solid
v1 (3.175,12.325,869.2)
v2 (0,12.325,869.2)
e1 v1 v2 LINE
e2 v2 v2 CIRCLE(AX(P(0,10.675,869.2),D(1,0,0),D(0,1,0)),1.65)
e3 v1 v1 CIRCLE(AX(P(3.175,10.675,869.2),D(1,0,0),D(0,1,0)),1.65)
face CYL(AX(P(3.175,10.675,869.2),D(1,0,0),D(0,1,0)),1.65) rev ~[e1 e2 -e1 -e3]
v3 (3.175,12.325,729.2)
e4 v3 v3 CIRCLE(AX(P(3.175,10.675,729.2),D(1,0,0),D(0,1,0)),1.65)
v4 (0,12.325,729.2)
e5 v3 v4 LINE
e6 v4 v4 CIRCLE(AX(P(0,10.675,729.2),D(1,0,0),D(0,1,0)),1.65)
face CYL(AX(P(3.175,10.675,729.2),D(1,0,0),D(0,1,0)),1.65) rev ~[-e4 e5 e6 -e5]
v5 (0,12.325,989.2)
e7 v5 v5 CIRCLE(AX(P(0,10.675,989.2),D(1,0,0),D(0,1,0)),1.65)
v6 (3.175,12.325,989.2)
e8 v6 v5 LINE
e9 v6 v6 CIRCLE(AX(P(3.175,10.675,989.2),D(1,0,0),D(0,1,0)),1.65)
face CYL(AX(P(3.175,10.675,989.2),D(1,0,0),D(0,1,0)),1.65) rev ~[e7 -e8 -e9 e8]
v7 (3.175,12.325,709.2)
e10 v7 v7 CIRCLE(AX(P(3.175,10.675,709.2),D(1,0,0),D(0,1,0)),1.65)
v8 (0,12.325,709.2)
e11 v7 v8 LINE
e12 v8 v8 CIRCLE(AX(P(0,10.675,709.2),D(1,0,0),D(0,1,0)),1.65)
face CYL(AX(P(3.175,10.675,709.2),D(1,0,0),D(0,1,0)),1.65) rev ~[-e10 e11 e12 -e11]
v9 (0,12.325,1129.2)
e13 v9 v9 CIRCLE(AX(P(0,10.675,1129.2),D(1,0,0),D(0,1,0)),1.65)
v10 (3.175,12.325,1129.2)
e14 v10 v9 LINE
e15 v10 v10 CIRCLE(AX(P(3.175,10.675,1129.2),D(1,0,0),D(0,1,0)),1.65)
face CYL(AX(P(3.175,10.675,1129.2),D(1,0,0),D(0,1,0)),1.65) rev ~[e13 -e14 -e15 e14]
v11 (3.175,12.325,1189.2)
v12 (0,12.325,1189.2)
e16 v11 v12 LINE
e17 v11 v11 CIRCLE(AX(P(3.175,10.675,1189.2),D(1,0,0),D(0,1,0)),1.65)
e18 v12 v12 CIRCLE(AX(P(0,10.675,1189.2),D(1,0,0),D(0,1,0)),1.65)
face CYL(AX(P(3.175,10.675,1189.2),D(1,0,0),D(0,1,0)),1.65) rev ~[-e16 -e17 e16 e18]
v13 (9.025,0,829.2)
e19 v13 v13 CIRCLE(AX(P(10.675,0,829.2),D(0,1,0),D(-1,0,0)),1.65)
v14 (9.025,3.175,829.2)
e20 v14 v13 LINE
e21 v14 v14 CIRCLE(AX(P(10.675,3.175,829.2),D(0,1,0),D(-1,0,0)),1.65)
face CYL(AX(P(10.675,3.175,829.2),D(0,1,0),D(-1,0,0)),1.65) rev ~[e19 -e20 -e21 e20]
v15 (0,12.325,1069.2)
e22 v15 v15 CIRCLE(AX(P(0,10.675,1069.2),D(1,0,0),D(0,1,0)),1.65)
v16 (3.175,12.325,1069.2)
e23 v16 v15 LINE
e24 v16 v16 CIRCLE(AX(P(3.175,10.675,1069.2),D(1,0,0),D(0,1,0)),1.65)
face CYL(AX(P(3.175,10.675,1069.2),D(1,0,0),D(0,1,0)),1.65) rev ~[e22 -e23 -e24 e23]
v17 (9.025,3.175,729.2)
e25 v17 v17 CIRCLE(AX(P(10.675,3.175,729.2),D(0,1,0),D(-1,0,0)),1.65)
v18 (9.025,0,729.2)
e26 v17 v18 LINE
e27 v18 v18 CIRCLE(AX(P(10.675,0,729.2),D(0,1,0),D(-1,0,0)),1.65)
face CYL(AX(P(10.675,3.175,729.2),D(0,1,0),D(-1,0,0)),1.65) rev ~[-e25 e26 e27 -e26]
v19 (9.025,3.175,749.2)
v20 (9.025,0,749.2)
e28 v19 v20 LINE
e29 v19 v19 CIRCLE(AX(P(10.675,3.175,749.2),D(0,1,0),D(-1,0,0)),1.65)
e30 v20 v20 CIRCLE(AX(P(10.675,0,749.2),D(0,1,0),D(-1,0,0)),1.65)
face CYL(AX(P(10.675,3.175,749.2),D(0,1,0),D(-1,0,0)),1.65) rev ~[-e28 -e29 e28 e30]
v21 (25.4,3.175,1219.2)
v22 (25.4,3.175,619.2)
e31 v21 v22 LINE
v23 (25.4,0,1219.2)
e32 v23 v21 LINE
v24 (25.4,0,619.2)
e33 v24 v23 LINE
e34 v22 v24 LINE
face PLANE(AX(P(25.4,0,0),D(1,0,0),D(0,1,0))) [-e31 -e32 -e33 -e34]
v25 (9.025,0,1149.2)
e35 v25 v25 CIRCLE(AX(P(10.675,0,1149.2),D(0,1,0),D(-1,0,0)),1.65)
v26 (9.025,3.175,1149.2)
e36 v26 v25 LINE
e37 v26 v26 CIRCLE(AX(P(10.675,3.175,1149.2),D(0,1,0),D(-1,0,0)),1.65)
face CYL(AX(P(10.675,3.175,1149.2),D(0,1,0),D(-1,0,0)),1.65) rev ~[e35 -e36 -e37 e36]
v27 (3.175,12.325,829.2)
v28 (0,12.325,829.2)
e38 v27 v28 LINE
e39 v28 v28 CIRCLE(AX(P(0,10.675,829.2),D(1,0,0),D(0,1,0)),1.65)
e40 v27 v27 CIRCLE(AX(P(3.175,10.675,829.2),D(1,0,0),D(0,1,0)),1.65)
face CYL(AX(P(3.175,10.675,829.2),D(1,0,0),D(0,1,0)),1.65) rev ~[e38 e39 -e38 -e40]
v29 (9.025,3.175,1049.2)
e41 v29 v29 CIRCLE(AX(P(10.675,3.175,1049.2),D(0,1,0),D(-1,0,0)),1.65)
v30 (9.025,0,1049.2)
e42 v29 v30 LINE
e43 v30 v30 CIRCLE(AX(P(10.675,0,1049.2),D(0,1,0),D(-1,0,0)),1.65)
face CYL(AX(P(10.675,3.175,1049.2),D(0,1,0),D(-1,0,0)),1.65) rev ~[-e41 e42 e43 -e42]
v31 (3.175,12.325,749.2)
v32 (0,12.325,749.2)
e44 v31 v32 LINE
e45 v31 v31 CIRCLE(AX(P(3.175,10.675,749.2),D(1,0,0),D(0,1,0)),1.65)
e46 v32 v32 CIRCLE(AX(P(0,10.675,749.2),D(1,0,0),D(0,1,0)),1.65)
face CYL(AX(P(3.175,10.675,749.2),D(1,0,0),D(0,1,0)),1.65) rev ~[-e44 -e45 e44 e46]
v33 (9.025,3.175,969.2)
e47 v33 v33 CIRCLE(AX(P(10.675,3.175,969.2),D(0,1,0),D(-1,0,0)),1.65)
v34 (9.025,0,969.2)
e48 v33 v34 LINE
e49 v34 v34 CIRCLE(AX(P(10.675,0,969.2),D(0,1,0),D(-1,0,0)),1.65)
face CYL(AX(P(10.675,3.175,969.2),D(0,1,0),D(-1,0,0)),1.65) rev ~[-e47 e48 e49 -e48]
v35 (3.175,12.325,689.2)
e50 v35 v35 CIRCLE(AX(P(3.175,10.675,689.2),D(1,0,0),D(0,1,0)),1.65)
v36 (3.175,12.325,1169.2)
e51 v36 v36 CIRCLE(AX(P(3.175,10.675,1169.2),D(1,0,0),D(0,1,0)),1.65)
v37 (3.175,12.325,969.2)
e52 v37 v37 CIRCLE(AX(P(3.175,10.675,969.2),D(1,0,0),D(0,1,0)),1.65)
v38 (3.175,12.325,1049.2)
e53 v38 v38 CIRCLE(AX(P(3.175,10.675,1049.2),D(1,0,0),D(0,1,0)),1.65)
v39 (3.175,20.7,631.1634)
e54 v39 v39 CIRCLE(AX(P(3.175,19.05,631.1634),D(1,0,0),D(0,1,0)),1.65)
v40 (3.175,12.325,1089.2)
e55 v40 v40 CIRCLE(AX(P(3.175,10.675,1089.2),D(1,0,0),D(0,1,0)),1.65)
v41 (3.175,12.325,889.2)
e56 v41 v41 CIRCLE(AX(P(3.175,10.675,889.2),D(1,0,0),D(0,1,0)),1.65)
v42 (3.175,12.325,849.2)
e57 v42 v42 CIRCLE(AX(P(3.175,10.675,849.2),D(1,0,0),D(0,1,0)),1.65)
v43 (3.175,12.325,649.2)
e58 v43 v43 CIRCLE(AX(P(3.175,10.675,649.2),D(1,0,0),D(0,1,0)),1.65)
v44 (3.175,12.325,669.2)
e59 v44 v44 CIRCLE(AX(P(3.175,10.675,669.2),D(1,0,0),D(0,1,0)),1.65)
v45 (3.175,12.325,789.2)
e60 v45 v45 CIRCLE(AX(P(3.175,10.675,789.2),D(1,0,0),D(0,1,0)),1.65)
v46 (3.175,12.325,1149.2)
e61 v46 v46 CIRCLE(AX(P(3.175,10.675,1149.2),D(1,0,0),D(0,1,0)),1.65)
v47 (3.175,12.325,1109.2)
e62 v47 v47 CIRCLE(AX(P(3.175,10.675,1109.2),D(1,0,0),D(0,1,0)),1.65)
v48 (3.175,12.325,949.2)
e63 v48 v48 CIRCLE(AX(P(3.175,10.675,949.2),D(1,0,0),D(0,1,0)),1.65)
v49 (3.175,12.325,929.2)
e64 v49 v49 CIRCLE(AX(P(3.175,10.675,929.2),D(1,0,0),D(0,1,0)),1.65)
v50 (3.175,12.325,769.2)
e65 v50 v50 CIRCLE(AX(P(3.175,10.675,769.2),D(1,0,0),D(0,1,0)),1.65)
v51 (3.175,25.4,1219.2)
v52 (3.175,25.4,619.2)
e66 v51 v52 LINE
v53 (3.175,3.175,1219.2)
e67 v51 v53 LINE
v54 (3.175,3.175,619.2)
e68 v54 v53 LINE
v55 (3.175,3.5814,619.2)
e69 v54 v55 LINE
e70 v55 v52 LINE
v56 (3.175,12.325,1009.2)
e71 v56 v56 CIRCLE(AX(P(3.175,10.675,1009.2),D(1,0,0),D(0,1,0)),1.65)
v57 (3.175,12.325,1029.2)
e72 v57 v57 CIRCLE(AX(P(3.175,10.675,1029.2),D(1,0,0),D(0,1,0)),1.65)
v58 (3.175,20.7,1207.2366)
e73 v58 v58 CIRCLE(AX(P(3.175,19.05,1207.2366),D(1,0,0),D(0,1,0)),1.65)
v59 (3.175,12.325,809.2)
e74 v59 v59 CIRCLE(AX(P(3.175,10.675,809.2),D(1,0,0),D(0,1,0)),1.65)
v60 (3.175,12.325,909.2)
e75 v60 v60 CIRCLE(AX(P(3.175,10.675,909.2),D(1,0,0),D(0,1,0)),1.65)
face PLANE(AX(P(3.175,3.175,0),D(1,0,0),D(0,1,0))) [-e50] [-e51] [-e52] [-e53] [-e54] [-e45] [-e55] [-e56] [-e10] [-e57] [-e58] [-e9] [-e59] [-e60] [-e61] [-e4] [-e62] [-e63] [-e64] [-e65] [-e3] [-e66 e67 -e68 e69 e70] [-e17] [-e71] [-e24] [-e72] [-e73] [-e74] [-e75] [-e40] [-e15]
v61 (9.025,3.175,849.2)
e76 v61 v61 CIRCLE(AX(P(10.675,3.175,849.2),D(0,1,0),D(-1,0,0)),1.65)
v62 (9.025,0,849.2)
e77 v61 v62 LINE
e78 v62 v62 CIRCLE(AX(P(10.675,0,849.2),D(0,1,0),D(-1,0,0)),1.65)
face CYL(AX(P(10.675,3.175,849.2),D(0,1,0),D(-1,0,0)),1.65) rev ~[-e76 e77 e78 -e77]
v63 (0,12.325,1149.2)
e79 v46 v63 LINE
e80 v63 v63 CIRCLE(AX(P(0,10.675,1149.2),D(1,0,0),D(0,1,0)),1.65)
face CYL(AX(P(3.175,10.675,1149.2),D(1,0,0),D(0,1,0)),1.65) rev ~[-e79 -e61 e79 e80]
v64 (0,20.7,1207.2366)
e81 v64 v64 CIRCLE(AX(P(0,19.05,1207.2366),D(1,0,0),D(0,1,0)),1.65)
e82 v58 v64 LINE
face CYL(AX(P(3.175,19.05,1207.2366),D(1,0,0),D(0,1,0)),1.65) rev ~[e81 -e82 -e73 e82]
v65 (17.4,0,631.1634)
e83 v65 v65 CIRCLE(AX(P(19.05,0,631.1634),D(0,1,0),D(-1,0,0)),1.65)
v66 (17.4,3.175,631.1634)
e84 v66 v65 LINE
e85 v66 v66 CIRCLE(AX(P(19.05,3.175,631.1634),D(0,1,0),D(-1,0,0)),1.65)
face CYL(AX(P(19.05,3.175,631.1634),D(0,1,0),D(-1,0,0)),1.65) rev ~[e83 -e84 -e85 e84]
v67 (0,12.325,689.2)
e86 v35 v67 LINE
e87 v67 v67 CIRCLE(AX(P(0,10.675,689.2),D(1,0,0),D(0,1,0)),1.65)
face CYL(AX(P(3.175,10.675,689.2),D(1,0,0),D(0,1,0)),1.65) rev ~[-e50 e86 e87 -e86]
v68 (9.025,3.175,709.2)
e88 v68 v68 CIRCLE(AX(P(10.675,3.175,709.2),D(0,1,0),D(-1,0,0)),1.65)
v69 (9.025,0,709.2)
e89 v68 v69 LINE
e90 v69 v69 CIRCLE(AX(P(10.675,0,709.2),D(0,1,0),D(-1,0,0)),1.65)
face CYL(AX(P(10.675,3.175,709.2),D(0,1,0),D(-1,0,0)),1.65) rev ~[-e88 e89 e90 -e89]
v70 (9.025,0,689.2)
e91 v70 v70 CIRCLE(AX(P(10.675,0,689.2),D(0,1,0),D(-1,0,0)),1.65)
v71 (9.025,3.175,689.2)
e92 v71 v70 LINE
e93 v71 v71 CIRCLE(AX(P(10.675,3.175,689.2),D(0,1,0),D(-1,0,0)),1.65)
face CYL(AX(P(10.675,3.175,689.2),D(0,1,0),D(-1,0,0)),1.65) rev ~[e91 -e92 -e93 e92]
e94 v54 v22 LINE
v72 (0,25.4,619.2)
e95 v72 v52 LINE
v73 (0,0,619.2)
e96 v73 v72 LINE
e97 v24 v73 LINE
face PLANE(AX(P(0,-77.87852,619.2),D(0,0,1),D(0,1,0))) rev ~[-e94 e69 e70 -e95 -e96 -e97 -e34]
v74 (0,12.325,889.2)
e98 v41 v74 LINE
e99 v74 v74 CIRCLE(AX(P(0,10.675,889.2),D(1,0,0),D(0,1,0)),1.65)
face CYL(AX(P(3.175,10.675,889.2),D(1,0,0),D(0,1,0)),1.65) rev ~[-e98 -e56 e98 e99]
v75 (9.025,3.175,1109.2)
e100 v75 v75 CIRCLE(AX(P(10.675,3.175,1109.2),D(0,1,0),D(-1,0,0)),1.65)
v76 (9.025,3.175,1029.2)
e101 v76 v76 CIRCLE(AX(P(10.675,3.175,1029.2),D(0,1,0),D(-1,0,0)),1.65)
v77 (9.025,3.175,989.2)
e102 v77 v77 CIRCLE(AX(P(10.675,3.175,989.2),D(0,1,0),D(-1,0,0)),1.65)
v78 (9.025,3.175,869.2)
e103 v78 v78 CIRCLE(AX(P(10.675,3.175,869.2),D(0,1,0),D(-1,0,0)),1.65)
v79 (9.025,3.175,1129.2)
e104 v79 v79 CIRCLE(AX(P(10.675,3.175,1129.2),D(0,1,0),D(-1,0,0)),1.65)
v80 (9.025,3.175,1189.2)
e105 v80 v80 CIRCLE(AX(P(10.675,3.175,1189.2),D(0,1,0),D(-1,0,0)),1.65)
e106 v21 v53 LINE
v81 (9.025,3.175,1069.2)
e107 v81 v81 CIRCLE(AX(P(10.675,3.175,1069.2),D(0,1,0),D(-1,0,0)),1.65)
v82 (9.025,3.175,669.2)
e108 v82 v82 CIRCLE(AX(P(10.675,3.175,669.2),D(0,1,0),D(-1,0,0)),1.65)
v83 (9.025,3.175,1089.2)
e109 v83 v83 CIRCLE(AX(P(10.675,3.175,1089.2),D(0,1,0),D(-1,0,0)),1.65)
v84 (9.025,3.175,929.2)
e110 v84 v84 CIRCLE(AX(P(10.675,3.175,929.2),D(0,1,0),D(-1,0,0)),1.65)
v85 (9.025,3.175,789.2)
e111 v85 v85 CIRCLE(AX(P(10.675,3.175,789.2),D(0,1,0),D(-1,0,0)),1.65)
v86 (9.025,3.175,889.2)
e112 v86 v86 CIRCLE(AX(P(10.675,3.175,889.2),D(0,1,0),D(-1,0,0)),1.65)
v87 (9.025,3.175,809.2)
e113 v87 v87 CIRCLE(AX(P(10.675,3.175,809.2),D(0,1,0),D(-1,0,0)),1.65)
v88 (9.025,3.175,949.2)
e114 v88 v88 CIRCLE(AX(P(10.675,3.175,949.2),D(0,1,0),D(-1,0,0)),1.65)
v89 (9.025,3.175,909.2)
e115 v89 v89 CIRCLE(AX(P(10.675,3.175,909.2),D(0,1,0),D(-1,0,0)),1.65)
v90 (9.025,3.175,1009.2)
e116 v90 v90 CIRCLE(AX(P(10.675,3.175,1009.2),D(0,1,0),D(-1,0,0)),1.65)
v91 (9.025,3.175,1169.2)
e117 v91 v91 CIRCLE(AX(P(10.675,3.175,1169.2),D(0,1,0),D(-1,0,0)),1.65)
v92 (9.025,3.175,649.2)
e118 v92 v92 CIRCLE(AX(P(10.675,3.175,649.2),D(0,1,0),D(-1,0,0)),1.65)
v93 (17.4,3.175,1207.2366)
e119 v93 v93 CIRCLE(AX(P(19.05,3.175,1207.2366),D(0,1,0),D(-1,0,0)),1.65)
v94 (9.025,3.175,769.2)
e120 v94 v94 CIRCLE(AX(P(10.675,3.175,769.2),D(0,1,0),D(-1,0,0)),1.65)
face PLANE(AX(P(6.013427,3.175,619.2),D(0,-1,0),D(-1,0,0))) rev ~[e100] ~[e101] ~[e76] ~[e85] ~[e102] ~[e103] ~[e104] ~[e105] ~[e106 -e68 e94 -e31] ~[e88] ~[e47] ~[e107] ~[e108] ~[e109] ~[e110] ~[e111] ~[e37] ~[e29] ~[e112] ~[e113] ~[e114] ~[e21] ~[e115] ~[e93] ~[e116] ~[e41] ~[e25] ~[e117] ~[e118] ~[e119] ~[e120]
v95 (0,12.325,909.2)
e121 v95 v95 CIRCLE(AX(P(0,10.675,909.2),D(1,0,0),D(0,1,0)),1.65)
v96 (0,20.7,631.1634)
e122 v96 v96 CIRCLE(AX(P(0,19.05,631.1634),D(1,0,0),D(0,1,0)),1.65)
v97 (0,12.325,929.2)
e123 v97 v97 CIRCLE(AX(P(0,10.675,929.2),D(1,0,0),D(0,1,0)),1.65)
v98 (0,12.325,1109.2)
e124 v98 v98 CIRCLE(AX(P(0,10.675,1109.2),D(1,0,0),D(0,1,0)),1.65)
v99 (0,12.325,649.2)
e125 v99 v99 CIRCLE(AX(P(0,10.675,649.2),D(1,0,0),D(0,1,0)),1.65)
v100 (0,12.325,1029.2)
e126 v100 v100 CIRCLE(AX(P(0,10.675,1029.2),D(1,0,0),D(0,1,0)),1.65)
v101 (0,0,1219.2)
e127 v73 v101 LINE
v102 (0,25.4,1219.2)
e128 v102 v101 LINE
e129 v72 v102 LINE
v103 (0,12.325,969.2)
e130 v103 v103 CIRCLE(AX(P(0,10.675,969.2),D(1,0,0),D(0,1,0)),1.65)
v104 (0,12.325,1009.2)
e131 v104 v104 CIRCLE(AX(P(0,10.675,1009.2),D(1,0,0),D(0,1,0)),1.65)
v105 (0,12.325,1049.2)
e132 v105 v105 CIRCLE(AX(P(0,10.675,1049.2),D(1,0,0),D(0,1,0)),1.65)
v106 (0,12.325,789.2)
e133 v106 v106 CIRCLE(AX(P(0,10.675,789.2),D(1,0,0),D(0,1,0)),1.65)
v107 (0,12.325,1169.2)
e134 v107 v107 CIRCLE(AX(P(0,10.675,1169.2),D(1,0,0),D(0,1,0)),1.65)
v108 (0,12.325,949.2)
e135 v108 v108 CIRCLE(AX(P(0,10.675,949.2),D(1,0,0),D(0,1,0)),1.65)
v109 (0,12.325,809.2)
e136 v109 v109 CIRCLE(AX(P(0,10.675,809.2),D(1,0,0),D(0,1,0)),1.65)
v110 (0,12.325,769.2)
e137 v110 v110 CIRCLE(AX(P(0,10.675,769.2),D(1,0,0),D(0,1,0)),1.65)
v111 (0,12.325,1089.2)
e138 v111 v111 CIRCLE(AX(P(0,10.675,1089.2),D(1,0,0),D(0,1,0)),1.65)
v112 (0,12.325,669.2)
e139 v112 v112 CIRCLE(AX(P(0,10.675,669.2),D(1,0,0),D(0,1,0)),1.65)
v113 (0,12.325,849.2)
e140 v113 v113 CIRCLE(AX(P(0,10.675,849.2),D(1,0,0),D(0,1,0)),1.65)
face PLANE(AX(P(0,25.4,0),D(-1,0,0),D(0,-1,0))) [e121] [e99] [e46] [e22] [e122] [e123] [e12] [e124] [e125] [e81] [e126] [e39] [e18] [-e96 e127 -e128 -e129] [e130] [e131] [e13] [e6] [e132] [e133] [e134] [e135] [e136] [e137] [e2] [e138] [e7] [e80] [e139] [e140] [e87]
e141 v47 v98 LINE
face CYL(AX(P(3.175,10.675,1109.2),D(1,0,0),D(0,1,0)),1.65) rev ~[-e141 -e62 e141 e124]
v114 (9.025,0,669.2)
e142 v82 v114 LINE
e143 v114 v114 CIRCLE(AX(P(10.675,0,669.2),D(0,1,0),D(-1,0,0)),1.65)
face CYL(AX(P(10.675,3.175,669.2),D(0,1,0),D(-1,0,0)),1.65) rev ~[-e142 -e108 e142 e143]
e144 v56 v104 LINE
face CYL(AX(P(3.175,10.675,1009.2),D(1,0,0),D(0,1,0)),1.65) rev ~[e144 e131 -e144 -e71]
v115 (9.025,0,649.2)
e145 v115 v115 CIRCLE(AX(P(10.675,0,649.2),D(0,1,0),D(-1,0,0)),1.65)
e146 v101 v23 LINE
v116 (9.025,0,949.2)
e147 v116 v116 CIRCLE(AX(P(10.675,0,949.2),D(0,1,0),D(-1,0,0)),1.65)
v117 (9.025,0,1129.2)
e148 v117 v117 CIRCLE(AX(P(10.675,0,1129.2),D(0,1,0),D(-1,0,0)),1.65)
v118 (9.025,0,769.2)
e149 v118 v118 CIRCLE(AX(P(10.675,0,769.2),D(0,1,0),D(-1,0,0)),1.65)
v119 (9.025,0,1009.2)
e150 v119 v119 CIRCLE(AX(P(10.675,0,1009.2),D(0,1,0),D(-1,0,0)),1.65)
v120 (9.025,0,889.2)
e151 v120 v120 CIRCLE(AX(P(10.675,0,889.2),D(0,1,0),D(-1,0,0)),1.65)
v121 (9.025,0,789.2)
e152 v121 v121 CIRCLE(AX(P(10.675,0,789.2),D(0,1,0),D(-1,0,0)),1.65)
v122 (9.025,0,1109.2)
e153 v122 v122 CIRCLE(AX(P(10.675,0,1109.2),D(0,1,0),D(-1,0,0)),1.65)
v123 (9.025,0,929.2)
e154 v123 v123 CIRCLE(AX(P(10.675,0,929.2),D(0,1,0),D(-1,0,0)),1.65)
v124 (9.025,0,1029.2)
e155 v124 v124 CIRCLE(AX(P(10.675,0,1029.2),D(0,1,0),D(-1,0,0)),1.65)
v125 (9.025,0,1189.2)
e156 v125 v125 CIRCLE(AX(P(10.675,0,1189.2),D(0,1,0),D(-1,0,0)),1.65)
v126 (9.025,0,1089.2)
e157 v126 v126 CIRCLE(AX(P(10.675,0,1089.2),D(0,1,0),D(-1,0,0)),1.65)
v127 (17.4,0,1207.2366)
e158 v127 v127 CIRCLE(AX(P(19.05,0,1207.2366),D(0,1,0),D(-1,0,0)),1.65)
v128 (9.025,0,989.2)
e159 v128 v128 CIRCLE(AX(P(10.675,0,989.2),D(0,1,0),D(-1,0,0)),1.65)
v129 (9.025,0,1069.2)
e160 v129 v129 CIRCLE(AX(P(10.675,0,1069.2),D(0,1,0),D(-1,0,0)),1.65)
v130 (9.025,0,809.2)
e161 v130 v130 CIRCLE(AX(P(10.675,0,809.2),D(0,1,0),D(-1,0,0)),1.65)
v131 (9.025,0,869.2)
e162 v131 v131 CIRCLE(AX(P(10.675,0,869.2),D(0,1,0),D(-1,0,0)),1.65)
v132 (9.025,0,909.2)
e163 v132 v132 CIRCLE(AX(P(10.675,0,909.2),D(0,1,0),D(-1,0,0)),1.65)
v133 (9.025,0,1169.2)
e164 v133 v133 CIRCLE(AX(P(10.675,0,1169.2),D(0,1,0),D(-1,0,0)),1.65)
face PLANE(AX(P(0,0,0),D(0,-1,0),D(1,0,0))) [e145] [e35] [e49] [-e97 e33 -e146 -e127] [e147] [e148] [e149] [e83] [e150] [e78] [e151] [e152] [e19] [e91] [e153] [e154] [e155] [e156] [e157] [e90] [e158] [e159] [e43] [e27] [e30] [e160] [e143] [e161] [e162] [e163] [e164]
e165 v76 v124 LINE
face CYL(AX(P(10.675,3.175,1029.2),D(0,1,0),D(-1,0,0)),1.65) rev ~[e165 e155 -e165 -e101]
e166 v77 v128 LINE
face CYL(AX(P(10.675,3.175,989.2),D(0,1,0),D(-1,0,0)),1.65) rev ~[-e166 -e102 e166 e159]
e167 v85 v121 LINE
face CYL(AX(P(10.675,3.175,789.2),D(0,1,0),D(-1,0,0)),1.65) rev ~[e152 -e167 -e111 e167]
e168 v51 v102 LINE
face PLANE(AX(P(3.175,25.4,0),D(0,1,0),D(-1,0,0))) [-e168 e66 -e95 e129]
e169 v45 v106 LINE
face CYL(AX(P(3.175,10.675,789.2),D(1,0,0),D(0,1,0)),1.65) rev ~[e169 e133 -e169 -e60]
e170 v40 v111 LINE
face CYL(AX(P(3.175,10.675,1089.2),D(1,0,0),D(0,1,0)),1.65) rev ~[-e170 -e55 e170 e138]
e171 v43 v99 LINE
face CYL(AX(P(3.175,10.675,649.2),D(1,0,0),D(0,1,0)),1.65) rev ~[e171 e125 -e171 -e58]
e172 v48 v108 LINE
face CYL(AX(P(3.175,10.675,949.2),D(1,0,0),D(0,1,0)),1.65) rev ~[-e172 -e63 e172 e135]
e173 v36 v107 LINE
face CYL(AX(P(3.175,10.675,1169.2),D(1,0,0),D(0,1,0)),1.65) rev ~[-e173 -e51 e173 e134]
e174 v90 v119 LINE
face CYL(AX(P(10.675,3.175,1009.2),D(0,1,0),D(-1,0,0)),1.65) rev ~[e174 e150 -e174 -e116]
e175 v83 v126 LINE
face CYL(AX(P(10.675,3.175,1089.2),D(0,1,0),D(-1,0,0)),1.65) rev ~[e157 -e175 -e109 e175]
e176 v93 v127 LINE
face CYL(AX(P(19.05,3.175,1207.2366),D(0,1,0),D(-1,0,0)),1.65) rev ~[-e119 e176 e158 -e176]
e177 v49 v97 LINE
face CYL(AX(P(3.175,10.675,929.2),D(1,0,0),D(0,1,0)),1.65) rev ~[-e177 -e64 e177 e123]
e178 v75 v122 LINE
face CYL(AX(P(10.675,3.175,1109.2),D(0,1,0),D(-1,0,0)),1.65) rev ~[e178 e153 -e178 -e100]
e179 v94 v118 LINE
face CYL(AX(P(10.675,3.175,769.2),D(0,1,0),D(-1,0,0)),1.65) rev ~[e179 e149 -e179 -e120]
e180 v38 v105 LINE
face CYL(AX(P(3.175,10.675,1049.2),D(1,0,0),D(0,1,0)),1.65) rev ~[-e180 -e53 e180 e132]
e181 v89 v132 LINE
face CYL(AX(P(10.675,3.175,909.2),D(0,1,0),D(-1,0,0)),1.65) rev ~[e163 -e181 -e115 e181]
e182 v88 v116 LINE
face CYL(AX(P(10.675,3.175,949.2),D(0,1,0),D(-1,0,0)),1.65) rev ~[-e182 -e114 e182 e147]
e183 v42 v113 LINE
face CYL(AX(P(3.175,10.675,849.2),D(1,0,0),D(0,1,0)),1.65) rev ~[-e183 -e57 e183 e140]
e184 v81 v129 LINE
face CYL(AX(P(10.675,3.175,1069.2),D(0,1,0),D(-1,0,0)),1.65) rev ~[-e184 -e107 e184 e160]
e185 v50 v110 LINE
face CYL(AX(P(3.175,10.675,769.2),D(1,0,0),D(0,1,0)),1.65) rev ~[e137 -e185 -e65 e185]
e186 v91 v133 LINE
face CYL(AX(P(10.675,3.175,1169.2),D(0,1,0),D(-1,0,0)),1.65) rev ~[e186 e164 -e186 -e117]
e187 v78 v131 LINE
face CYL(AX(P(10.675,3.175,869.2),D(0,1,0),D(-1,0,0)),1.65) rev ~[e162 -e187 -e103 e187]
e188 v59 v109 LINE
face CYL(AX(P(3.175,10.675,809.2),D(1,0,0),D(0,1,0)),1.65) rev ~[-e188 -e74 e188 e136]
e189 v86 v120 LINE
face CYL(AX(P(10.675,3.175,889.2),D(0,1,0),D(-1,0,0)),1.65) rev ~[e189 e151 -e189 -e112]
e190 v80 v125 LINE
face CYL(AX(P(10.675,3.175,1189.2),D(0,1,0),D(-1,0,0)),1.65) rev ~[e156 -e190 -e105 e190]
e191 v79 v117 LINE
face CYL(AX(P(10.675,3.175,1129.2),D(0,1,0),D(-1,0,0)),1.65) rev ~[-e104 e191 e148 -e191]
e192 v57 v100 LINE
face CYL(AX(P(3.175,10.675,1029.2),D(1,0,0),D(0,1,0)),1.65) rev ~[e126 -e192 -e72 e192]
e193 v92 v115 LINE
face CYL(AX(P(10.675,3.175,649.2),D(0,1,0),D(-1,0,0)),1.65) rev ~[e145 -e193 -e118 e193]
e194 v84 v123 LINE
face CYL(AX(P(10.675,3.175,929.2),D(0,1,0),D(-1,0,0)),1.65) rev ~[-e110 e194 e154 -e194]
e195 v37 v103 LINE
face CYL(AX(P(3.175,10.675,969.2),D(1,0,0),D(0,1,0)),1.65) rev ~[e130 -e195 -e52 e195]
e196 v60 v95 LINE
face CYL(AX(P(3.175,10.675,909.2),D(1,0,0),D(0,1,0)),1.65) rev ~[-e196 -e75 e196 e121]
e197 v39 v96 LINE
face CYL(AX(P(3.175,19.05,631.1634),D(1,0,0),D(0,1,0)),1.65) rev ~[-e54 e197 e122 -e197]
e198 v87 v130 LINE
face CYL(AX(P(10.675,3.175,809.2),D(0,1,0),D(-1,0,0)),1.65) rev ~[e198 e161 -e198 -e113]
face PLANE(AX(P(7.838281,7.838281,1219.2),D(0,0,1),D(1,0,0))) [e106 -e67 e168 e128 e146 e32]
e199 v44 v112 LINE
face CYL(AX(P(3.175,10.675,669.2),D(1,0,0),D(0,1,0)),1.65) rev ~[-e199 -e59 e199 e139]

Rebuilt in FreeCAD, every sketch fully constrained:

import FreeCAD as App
import Part
import Sketcher

V = App.Vector


def edges_at(feature, points):
    """Names of the edges that pass closest to the given points."""
    edges = feature.Shape.Edges
    near = lambda p: min(range(len(edges)), key=lambda i: edges[i].distToShape(Part.Vertex(*p))[0])
    return sorted({f"Edge{near(p) + 1}" for p in points})

doc = App.newDocument("Part")
body = doc.addObject("PartDesign::Body", "Body")

# Sketch on XY plane
sketch1 = body.newObject("Sketcher::SketchObject", "Sketch")
sketch1.AttachmentSupport = (doc.getObject("XY_Plane"), [""])
sketch1.MapMode = "FlatFace"
sketch1.addGeometry(Part.LineSegment(V(3.175, 25.4, 0), V(0, 25.4, 0)), False)
sketch1.addGeometry(Part.LineSegment(V(0, 25.4, 0), V(0, 0, 0)), False)
sketch1.addGeometry(Part.LineSegment(V(0, 0, 0), V(25.4, 0, 0)), False)
sketch1.addGeometry(Part.LineSegment(V(25.4, 0, 0), V(25.4, 3.175, 0)), False)
sketch1.addGeometry(Part.LineSegment(V(25.4, 3.175, 0), V(3.175, 3.175, 0)), False)
sketch1.addGeometry(Part.LineSegment(V(3.175, 3.175, 0), V(3.175, 25.4, 0)), False)
sketch1.addConstraint(Sketcher.Constraint("Coincident", 0, 2, 1, 1))
sketch1.addConstraint(Sketcher.Constraint("Coincident", 1, 2, 2, 1))
sketch1.addConstraint(Sketcher.Constraint("Coincident", 2, 2, 3, 1))
sketch1.addConstraint(Sketcher.Constraint("Coincident", 3, 2, 4, 1))
sketch1.addConstraint(Sketcher.Constraint("Coincident", 4, 2, 5, 1))
sketch1.addConstraint(Sketcher.Constraint("Coincident", 5, 2, 0, 1))
sketch1.addConstraint(Sketcher.Constraint("Horizontal", 0))
sketch1.addConstraint(Sketcher.Constraint("Vertical", 1))
sketch1.addConstraint(Sketcher.Constraint("Horizontal", 2))
sketch1.addConstraint(Sketcher.Constraint("Vertical", 3))
sketch1.addConstraint(Sketcher.Constraint("Horizontal", 4))
sketch1.addConstraint(Sketcher.Constraint("Vertical", 5))
sketch1.addConstraint(Sketcher.Constraint("Coincident", 1, 2, -1, 1))
sketch1.addConstraint(Sketcher.Constraint("Equal", 2, 1))
sketch1.addConstraint(Sketcher.Constraint("Equal", 0, 3))
sketch1.addConstraint(Sketcher.Constraint("DistanceX", 2, 1, 2, 2, 25.4))
sketch1.addConstraint(Sketcher.Constraint("DistanceX", 0, 2, 0, 1, 3.175))
pad1 = body.newObject("PartDesign::Pad", "Pad")
pad1.Profile = sketch1
pad1.Length = 2438.4
pad1.Midplane = True
doc.recompute()

fillet = body.newObject("PartDesign::Fillet", "Fillet")
fillet.Base = (pad1, edges_at(pad1, [(3.175, 3.175, 0)]))
fillet.Radius = 0.4064

# Sketch on YZ plane
sketch2 = body.newObject("Sketcher::SketchObject", "Sketch001")
sketch2.AttachmentSupport = (doc.getObject("YZ_Plane"), [""])
sketch2.MapMode = "FlatFace"
sketch2.addGeometry(Part.LineSegment(V(25.4, -1219.2, 0), V(-77.87852, -1219.2, 0)), False)
sketch2.addGeometry(Part.LineSegment(V(-77.87852, -1219.2, 0), V(-77.87852, 619.2, 0)), False)
sketch2.addGeometry(Part.LineSegment(V(-77.87852, 619.2, 0), V(25.4, 619.2, 0)), False)
sketch2.addGeometry(Part.LineSegment(V(25.4, 619.2, 0), V(25.4, -1219.2, 0)), False)
sketch2.addConstraint(Sketcher.Constraint("Coincident", 0, 2, 1, 1))
sketch2.addConstraint(Sketcher.Constraint("Coincident", 1, 2, 2, 1))
sketch2.addConstraint(Sketcher.Constraint("Coincident", 2, 2, 3, 1))
sketch2.addConstraint(Sketcher.Constraint("Coincident", 3, 2, 0, 1))
sketch2.addConstraint(Sketcher.Constraint("Horizontal", 0))
sketch2.addConstraint(Sketcher.Constraint("Vertical", 1))
sketch2.addConstraint(Sketcher.Constraint("Horizontal", 2))
sketch2.addConstraint(Sketcher.Constraint("Vertical", 3))
sketch2.addConstraint(Sketcher.Constraint("DistanceY", 1, 1, 1, 2, 1838.4))
sketch2.addConstraint(Sketcher.Constraint("DistanceY", 0, 2, -1, 1, 1219.2))
sketch2.addConstraint(Sketcher.Constraint("DistanceX", -1, 1, 2, 2, 25.4))
sketch2.addConstraint(Sketcher.Constraint("DistanceX", 0, 2, 0, 1, 103.27852))
pocket1 = body.newObject("PartDesign::Pocket", "Pocket")
pocket1.Profile = sketch2
pocket1.Length = 60
pocket1.Reversed = True

# Sketch on XY plane
sketch3 = body.newObject("Sketcher::SketchObject", "Sketch002")
sketch3.AttachmentSupport = (doc.getObject("XY_Plane"), [""])
sketch3.MapMode = "FlatFace"
sketch3.AttachmentOffset = App.Placement(V(0, 0, 619.2), App.Rotation())
sketch3.addGeometry(Part.LineSegment(V(6.013427, 5.14598, 0), V(6.013427, 3.175, 0)), False)
sketch3.addGeometry(Part.LineSegment(V(6.013427, 3.175, 0), V(3.175, 3.175, 0)), False)
sketch3.addGeometry(Part.LineSegment(V(3.175, 3.175, 0), V(3.175, 5.14598, 0)), False)
sketch3.addGeometry(Part.LineSegment(V(3.175, 5.14598, 0), V(6.013427, 5.14598, 0)), False)
sketch3.addConstraint(Sketcher.Constraint("Coincident", 0, 2, 1, 1))
sketch3.addConstraint(Sketcher.Constraint("Coincident", 1, 2, 2, 1))
sketch3.addConstraint(Sketcher.Constraint("Coincident", 2, 2, 3, 1))
sketch3.addConstraint(Sketcher.Constraint("Coincident", 3, 2, 0, 1))
sketch3.addConstraint(Sketcher.Constraint("Vertical", 0))
sketch3.addConstraint(Sketcher.Constraint("Horizontal", 1))
sketch3.addConstraint(Sketcher.Constraint("Vertical", 2))
sketch3.addConstraint(Sketcher.Constraint("Horizontal", 3))
sketch3.addConstraint(Sketcher.Constraint("DistanceY", -1, 1, 0, 2, 3.175))
sketch3.addConstraint(Sketcher.Constraint("DistanceX", -1, 1, 1, 2, 3.175))
sketch3.addConstraint(Sketcher.Constraint("DistanceY", 0, 2, 0, 1, 1.97098))
sketch3.addConstraint(Sketcher.Constraint("DistanceX", 1, 2, 1, 1, 2.838427))
pocket2 = body.newObject("PartDesign::Pocket", "Pocket001")
pocket2.Profile = sketch3
pocket2.Length = 700
pocket2.Reversed = True

# Sketch on YZ plane
sketch4 = body.newObject("Sketcher::SketchObject", "Sketch003")
sketch4.AttachmentSupport = (doc.getObject("YZ_Plane"), [""])
sketch4.MapMode = "FlatFace"
sketch4.AttachmentOffset = App.Placement(V(0, 0, 3.175), App.Rotation())
sketch4.addGeometry(Part.Circle(V(10.675, 649.2, 0), V(0, 0, 1), 1.65), False)
sketch4.addGeometry(Part.Circle(V(10.675, 669.2, 0), V(0, 0, 1), 1.65), False)
sketch4.addGeometry(Part.Circle(V(10.675, 689.2, 0), V(0, 0, 1), 1.65), False)
sketch4.addGeometry(Part.Circle(V(10.675, 709.2, 0), V(0, 0, 1), 1.65), False)
sketch4.addGeometry(Part.Circle(V(10.675, 729.2, 0), V(0, 0, 1), 1.65), False)
sketch4.addGeometry(Part.Circle(V(10.675, 749.2, 0), V(0, 0, 1), 1.65), False)
sketch4.addGeometry(Part.Circle(V(10.675, 769.2, 0), V(0, 0, 1), 1.65), False)
sketch4.addGeometry(Part.Circle(V(10.675, 789.2, 0), V(0, 0, 1), 1.65), False)
sketch4.addGeometry(Part.Circle(V(10.675, 809.2, 0), V(0, 0, 1), 1.65), False)
sketch4.addGeometry(Part.Circle(V(10.675, 829.2, 0), V(0, 0, 1), 1.65), False)
sketch4.addGeometry(Part.Circle(V(10.675, 849.2, 0), V(0, 0, 1), 1.65), False)
sketch4.addGeometry(Part.Circle(V(10.675, 869.2, 0), V(0, 0, 1), 1.65), False)
sketch4.addGeometry(Part.Circle(V(10.675, 889.2, 0), V(0, 0, 1), 1.65), False)
sketch4.addGeometry(Part.Circle(V(10.675, 909.2, 0), V(0, 0, 1), 1.65), False)
sketch4.addGeometry(Part.Circle(V(10.675, 929.2, 0), V(0, 0, 1), 1.65), False)
sketch4.addGeometry(Part.Circle(V(10.675, 949.2, 0), V(0, 0, 1), 1.65), False)
sketch4.addGeometry(Part.Circle(V(10.675, 969.2, 0), V(0, 0, 1), 1.65), False)
sketch4.addGeometry(Part.Circle(V(10.675, 989.2, 0), V(0, 0, 1), 1.65), False)
sketch4.addGeometry(Part.Circle(V(10.675, 1009.2, 0), V(0, 0, 1), 1.65), False)
sketch4.addGeometry(Part.Circle(V(10.675, 1029.2, 0), V(0, 0, 1), 1.65), False)
sketch4.addGeometry(Part.Circle(V(10.675, 1049.2, 0), V(0, 0, 1), 1.65), False)
sketch4.addGeometry(Part.Circle(V(10.675, 1069.2, 0), V(0, 0, 1), 1.65), False)
sketch4.addGeometry(Part.Circle(V(10.675, 1089.2, 0), V(0, 0, 1), 1.65), False)
sketch4.addGeometry(Part.Circle(V(10.675, 1109.2, 0), V(0, 0, 1), 1.65), False)
sketch4.addGeometry(Part.Circle(V(10.675, 1129.2, 0), V(0, 0, 1), 1.65), False)
sketch4.addGeometry(Part.Circle(V(10.675, 1149.2, 0), V(0, 0, 1), 1.65), False)
sketch4.addGeometry(Part.Circle(V(10.675, 1169.2, 0), V(0, 0, 1), 1.65), False)
sketch4.addGeometry(Part.Circle(V(10.675, 1189.2, 0), V(0, 0, 1), 1.65), False)
sketch4.addConstraint(Sketcher.Constraint("Equal", 0, 1))
sketch4.addConstraint(Sketcher.Constraint("Equal", 1, 2))
sketch4.addConstraint(Sketcher.Constraint("Equal", 2, 3))
sketch4.addConstraint(Sketcher.Constraint("Equal", 3, 4))
sketch4.addConstraint(Sketcher.Constraint("Equal", 4, 5))
sketch4.addConstraint(Sketcher.Constraint("Equal", 5, 6))
sketch4.addConstraint(Sketcher.Constraint("Equal", 6, 7))
sketch4.addConstraint(Sketcher.Constraint("Equal", 7, 8))
sketch4.addConstraint(Sketcher.Constraint("Equal", 8, 9))
sketch4.addConstraint(Sketcher.Constraint("Equal", 9, 10))
sketch4.addConstraint(Sketcher.Constraint("Equal", 10, 11))
sketch4.addConstraint(Sketcher.Constraint("Equal", 11, 12))
sketch4.addConstraint(Sketcher.Constraint("Equal", 12, 13))
sketch4.addConstraint(Sketcher.Constraint("Equal", 13, 14))
sketch4.addConstraint(Sketcher.Constraint("Equal", 14, 15))
sketch4.addConstraint(Sketcher.Constraint("Equal", 15, 16))
sketch4.addConstraint(Sketcher.Constraint("Equal", 16, 17))
sketch4.addConstraint(Sketcher.Constraint("Equal", 17, 18))
sketch4.addConstraint(Sketcher.Constraint("Equal", 18, 19))
sketch4.addConstraint(Sketcher.Constraint("Equal", 19, 20))
sketch4.addConstraint(Sketcher.Constraint("Equal", 20, 21))
sketch4.addConstraint(Sketcher.Constraint("Equal", 21, 22))
sketch4.addConstraint(Sketcher.Constraint("Equal", 22, 23))
sketch4.addConstraint(Sketcher.Constraint("Equal", 23, 24))
sketch4.addConstraint(Sketcher.Constraint("Equal", 24, 25))
sketch4.addConstraint(Sketcher.Constraint("Equal", 25, 26))
sketch4.addConstraint(Sketcher.Constraint("Equal", 26, 27))
sketch4.addConstraint(Sketcher.Constraint("Vertical", 0, 3, 1, 3))
sketch4.addConstraint(Sketcher.Constraint("Vertical", 1, 3, 2, 3))
sketch4.addConstraint(Sketcher.Constraint("Vertical", 2, 3, 3, 3))
sketch4.addConstraint(Sketcher.Constraint("Vertical", 3, 3, 4, 3))
sketch4.addConstraint(Sketcher.Constraint("Vertical", 4, 3, 5, 3))
sketch4.addConstraint(Sketcher.Constraint("Vertical", 5, 3, 6, 3))
sketch4.addConstraint(Sketcher.Constraint("Vertical", 6, 3, 7, 3))
sketch4.addConstraint(Sketcher.Constraint("Vertical", 7, 3, 8, 3))
sketch4.addConstraint(Sketcher.Constraint("Vertical", 8, 3, 9, 3))
sketch4.addConstraint(Sketcher.Constraint("Vertical", 9, 3, 10, 3))
sketch4.addConstraint(Sketcher.Constraint("Vertical", 10, 3, 11, 3))
sketch4.addConstraint(Sketcher.Constraint("Vertical", 11, 3, 12, 3))
sketch4.addConstraint(Sketcher.Constraint("Vertical", 12, 3, 13, 3))
sketch4.addConstraint(Sketcher.Constraint("Vertical", 13, 3, 14, 3))
sketch4.addConstraint(Sketcher.Constraint("Vertical", 14, 3, 15, 3))
sketch4.addConstraint(Sketcher.Constraint("Vertical", 15, 3, 16, 3))
sketch4.addConstraint(Sketcher.Constraint("Vertical", 16, 3, 17, 3))
sketch4.addConstraint(Sketcher.Constraint("Vertical", 17, 3, 18, 3))
sketch4.addConstraint(Sketcher.Constraint("Vertical", 18, 3, 19, 3))
sketch4.addConstraint(Sketcher.Constraint("Vertical", 19, 3, 20, 3))
sketch4.addConstraint(Sketcher.Constraint("Vertical", 20, 3, 21, 3))
sketch4.addConstraint(Sketcher.Constraint("Vertical", 21, 3, 22, 3))
sketch4.addConstraint(Sketcher.Constraint("Vertical", 22, 3, 23, 3))
sketch4.addConstraint(Sketcher.Constraint("Vertical", 23, 3, 24, 3))
sketch4.addConstraint(Sketcher.Constraint("Vertical", 24, 3, 25, 3))
sketch4.addConstraint(Sketcher.Constraint("Vertical", 25, 3, 26, 3))
sketch4.addConstraint(Sketcher.Constraint("Vertical", 26, 3, 27, 3))
sketch4.addConstraint(Sketcher.Constraint("Diameter", 0, 3.3))
sketch4.addConstraint(Sketcher.Constraint("DistanceY", 0, 3, 1, 3, 20.0))
sketch4.addConstraint(Sketcher.Constraint("DistanceY", 1, 3, 2, 3, 20.0))
sketch4.addConstraint(Sketcher.Constraint("DistanceY", 2, 3, 3, 3, 20.0))
sketch4.addConstraint(Sketcher.Constraint("DistanceY", 3, 3, 4, 3, 20.0))
sketch4.addConstraint(Sketcher.Constraint("DistanceY", 4, 3, 5, 3, 20.0))
sketch4.addConstraint(Sketcher.Constraint("DistanceY", 5, 3, 6, 3, 20.0))
sketch4.addConstraint(Sketcher.Constraint("DistanceY", 6, 3, 7, 3, 20.0))
sketch4.addConstraint(Sketcher.Constraint("DistanceY", 7, 3, 8, 3, 20.0))
sketch4.addConstraint(Sketcher.Constraint("DistanceY", 8, 3, 9, 3, 20.0))
sketch4.addConstraint(Sketcher.Constraint("DistanceY", 9, 3, 10, 3, 20.0))
sketch4.addConstraint(Sketcher.Constraint("DistanceY", 10, 3, 11, 3, 20.0))
sketch4.addConstraint(Sketcher.Constraint("DistanceY", 11, 3, 12, 3, 20.0))
sketch4.addConstraint(Sketcher.Constraint("DistanceY", 12, 3, 13, 3, 20.0))
sketch4.addConstraint(Sketcher.Constraint("DistanceY", 13, 3, 14, 3, 20.0))
sketch4.addConstraint(Sketcher.Constraint("DistanceY", 14, 3, 15, 3, 20.0))
sketch4.addConstraint(Sketcher.Constraint("DistanceY", 15, 3, 16, 3, 20.0))
sketch4.addConstraint(Sketcher.Constraint("DistanceY", 16, 3, 17, 3, 20.0))
sketch4.addConstraint(Sketcher.Constraint("DistanceY", 17, 3, 18, 3, 20.0))
sketch4.addConstraint(Sketcher.Constraint("DistanceY", 18, 3, 19, 3, 20.0))
sketch4.addConstraint(Sketcher.Constraint("DistanceY", 19, 3, 20, 3, 20.0))
sketch4.addConstraint(Sketcher.Constraint("DistanceY", 20, 3, 21, 3, 20.0))
sketch4.addConstraint(Sketcher.Constraint("DistanceY", 21, 3, 22, 3, 20.0))
sketch4.addConstraint(Sketcher.Constraint("DistanceY", 22, 3, 23, 3, 20.0))
sketch4.addConstraint(Sketcher.Constraint("DistanceY", 23, 3, 24, 3, 20.0))
sketch4.addConstraint(Sketcher.Constraint("DistanceY", 24, 3, 25, 3, 20.0))
sketch4.addConstraint(Sketcher.Constraint("DistanceY", 25, 3, 26, 3, 20.0))
sketch4.addConstraint(Sketcher.Constraint("DistanceY", 26, 3, 27, 3, 20.0))
sketch4.addConstraint(Sketcher.Constraint("DistanceY", -1, 1, 0, 3, 649.2))
sketch4.addConstraint(Sketcher.Constraint("DistanceX", -1, 1, 0, 3, 10.675))
pocket3 = body.newObject("PartDesign::Pocket", "Pocket002")
pocket3.Profile = sketch4
pocket3.Length = 20

# Sketch on XZ plane
sketch5 = body.newObject("Sketcher::SketchObject", "Sketch004")
sketch5.AttachmentSupport = (doc.getObject("XZ_Plane"), [""])
sketch5.MapMode = "FlatFace"
sketch5.AttachmentOffset = App.Placement(V(0, 0, -3.175), App.Rotation())
sketch5.addGeometry(Part.Circle(V(10.675, 649.2, 0), V(0, 0, 1), 1.65), False)
sketch5.addGeometry(Part.Circle(V(10.675, 669.2, 0), V(0, 0, 1), 1.65), False)
sketch5.addGeometry(Part.Circle(V(10.675, 689.2, 0), V(0, 0, 1), 1.65), False)
sketch5.addGeometry(Part.Circle(V(10.675, 709.2, 0), V(0, 0, 1), 1.65), False)
sketch5.addGeometry(Part.Circle(V(10.675, 729.2, 0), V(0, 0, 1), 1.65), False)
sketch5.addGeometry(Part.Circle(V(10.675, 749.2, 0), V(0, 0, 1), 1.65), False)
sketch5.addGeometry(Part.Circle(V(10.675, 769.2, 0), V(0, 0, 1), 1.65), False)
sketch5.addGeometry(Part.Circle(V(10.675, 789.2, 0), V(0, 0, 1), 1.65), False)
sketch5.addGeometry(Part.Circle(V(10.675, 809.2, 0), V(0, 0, 1), 1.65), False)
sketch5.addGeometry(Part.Circle(V(10.675, 829.2, 0), V(0, 0, 1), 1.65), False)
sketch5.addGeometry(Part.Circle(V(10.675, 849.2, 0), V(0, 0, 1), 1.65), False)
sketch5.addGeometry(Part.Circle(V(10.675, 869.2, 0), V(0, 0, 1), 1.65), False)
sketch5.addGeometry(Part.Circle(V(10.675, 889.2, 0), V(0, 0, 1), 1.65), False)
sketch5.addGeometry(Part.Circle(V(10.675, 909.2, 0), V(0, 0, 1), 1.65), False)
sketch5.addGeometry(Part.Circle(V(10.675, 929.2, 0), V(0, 0, 1), 1.65), False)
sketch5.addGeometry(Part.Circle(V(10.675, 949.2, 0), V(0, 0, 1), 1.65), False)
sketch5.addGeometry(Part.Circle(V(10.675, 969.2, 0), V(0, 0, 1), 1.65), False)
sketch5.addGeometry(Part.Circle(V(10.675, 989.2, 0), V(0, 0, 1), 1.65), False)
sketch5.addGeometry(Part.Circle(V(10.675, 1009.2, 0), V(0, 0, 1), 1.65), False)
sketch5.addGeometry(Part.Circle(V(10.675, 1029.2, 0), V(0, 0, 1), 1.65), False)
sketch5.addGeometry(Part.Circle(V(10.675, 1049.2, 0), V(0, 0, 1), 1.65), False)
sketch5.addGeometry(Part.Circle(V(10.675, 1069.2, 0), V(0, 0, 1), 1.65), False)
sketch5.addGeometry(Part.Circle(V(10.675, 1089.2, 0), V(0, 0, 1), 1.65), False)
sketch5.addGeometry(Part.Circle(V(10.675, 1109.2, 0), V(0, 0, 1), 1.65), False)
sketch5.addGeometry(Part.Circle(V(10.675, 1129.2, 0), V(0, 0, 1), 1.65), False)
sketch5.addGeometry(Part.Circle(V(10.675, 1149.2, 0), V(0, 0, 1), 1.65), False)
sketch5.addGeometry(Part.Circle(V(10.675, 1169.2, 0), V(0, 0, 1), 1.65), False)
sketch5.addGeometry(Part.Circle(V(10.675, 1189.2, 0), V(0, 0, 1), 1.65), False)
sketch5.addConstraint(Sketcher.Constraint("Equal", 0, 1))
sketch5.addConstraint(Sketcher.Constraint("Equal", 1, 2))
sketch5.addConstraint(Sketcher.Constraint("Equal", 2, 3))
sketch5.addConstraint(Sketcher.Constraint("Equal", 3, 4))
sketch5.addConstraint(Sketcher.Constraint("Equal", 4, 5))
sketch5.addConstraint(Sketcher.Constraint("Equal", 5, 6))
sketch5.addConstraint(Sketcher.Constraint("Equal", 6, 7))
sketch5.addConstraint(Sketcher.Constraint("Equal", 7, 8))
sketch5.addConstraint(Sketcher.Constraint("Equal", 8, 9))
sketch5.addConstraint(Sketcher.Constraint("Equal", 9, 10))
sketch5.addConstraint(Sketcher.Constraint("Equal", 10, 11))
sketch5.addConstraint(Sketcher.Constraint("Equal", 11, 12))
sketch5.addConstraint(Sketcher.Constraint("Equal", 12, 13))
sketch5.addConstraint(Sketcher.Constraint("Equal", 13, 14))
sketch5.addConstraint(Sketcher.Constraint("Equal", 14, 15))
sketch5.addConstraint(Sketcher.Constraint("Equal", 15, 16))
sketch5.addConstraint(Sketcher.Constraint("Equal", 16, 17))
sketch5.addConstraint(Sketcher.Constraint("Equal", 17, 18))
sketch5.addConstraint(Sketcher.Constraint("Equal", 18, 19))
sketch5.addConstraint(Sketcher.Constraint("Equal", 19, 20))
sketch5.addConstraint(Sketcher.Constraint("Equal", 20, 21))
sketch5.addConstraint(Sketcher.Constraint("Equal", 21, 22))
sketch5.addConstraint(Sketcher.Constraint("Equal", 22, 23))
sketch5.addConstraint(Sketcher.Constraint("Equal", 23, 24))
sketch5.addConstraint(Sketcher.Constraint("Equal", 24, 25))
sketch5.addConstraint(Sketcher.Constraint("Equal", 25, 26))
sketch5.addConstraint(Sketcher.Constraint("Equal", 26, 27))
sketch5.addConstraint(Sketcher.Constraint("Vertical", 0, 3, 1, 3))
sketch5.addConstraint(Sketcher.Constraint("Vertical", 1, 3, 2, 3))
sketch5.addConstraint(Sketcher.Constraint("Vertical", 2, 3, 3, 3))
sketch5.addConstraint(Sketcher.Constraint("Vertical", 3, 3, 4, 3))
sketch5.addConstraint(Sketcher.Constraint("Vertical", 4, 3, 5, 3))
sketch5.addConstraint(Sketcher.Constraint("Vertical", 5, 3, 6, 3))
sketch5.addConstraint(Sketcher.Constraint("Vertical", 6, 3, 7, 3))
sketch5.addConstraint(Sketcher.Constraint("Vertical", 7, 3, 8, 3))
sketch5.addConstraint(Sketcher.Constraint("Vertical", 8, 3, 9, 3))
sketch5.addConstraint(Sketcher.Constraint("Vertical", 9, 3, 10, 3))
sketch5.addConstraint(Sketcher.Constraint("Vertical", 10, 3, 11, 3))
sketch5.addConstraint(Sketcher.Constraint("Vertical", 11, 3, 12, 3))
sketch5.addConstraint(Sketcher.Constraint("Vertical", 12, 3, 13, 3))
sketch5.addConstraint(Sketcher.Constraint("Vertical", 13, 3, 14, 3))
sketch5.addConstraint(Sketcher.Constraint("Vertical", 14, 3, 15, 3))
sketch5.addConstraint(Sketcher.Constraint("Vertical", 15, 3, 16, 3))
sketch5.addConstraint(Sketcher.Constraint("Vertical", 16, 3, 17, 3))
sketch5.addConstraint(Sketcher.Constraint("Vertical", 17, 3, 18, 3))
sketch5.addConstraint(Sketcher.Constraint("Vertical", 18, 3, 19, 3))
sketch5.addConstraint(Sketcher.Constraint("Vertical", 19, 3, 20, 3))
sketch5.addConstraint(Sketcher.Constraint("Vertical", 20, 3, 21, 3))
sketch5.addConstraint(Sketcher.Constraint("Vertical", 21, 3, 22, 3))
sketch5.addConstraint(Sketcher.Constraint("Vertical", 22, 3, 23, 3))
sketch5.addConstraint(Sketcher.Constraint("Vertical", 23, 3, 24, 3))
sketch5.addConstraint(Sketcher.Constraint("Vertical", 24, 3, 25, 3))
sketch5.addConstraint(Sketcher.Constraint("Vertical", 25, 3, 26, 3))
sketch5.addConstraint(Sketcher.Constraint("Vertical", 26, 3, 27, 3))
sketch5.addConstraint(Sketcher.Constraint("Diameter", 0, 3.3))
sketch5.addConstraint(Sketcher.Constraint("DistanceY", 0, 3, 1, 3, 20.0))
sketch5.addConstraint(Sketcher.Constraint("DistanceY", 1, 3, 2, 3, 20.0))
sketch5.addConstraint(Sketcher.Constraint("DistanceY", 2, 3, 3, 3, 20.0))
sketch5.addConstraint(Sketcher.Constraint("DistanceY", 3, 3, 4, 3, 20.0))
sketch5.addConstraint(Sketcher.Constraint("DistanceY", 4, 3, 5, 3, 20.0))
sketch5.addConstraint(Sketcher.Constraint("DistanceY", 5, 3, 6, 3, 20.0))
sketch5.addConstraint(Sketcher.Constraint("DistanceY", 6, 3, 7, 3, 20.0))
sketch5.addConstraint(Sketcher.Constraint("DistanceY", 7, 3, 8, 3, 20.0))
sketch5.addConstraint(Sketcher.Constraint("DistanceY", 8, 3, 9, 3, 20.0))
sketch5.addConstraint(Sketcher.Constraint("DistanceY", 9, 3, 10, 3, 20.0))
sketch5.addConstraint(Sketcher.Constraint("DistanceY", 10, 3, 11, 3, 20.0))
sketch5.addConstraint(Sketcher.Constraint("DistanceY", 11, 3, 12, 3, 20.0))
sketch5.addConstraint(Sketcher.Constraint("DistanceY", 12, 3, 13, 3, 20.0))
sketch5.addConstraint(Sketcher.Constraint("DistanceY", 13, 3, 14, 3, 20.0))
sketch5.addConstraint(Sketcher.Constraint("DistanceY", 14, 3, 15, 3, 20.0))
sketch5.addConstraint(Sketcher.Constraint("DistanceY", 15, 3, 16, 3, 20.0))
sketch5.addConstraint(Sketcher.Constraint("DistanceY", 16, 3, 17, 3, 20.0))
sketch5.addConstraint(Sketcher.Constraint("DistanceY", 17, 3, 18, 3, 20.0))
sketch5.addConstraint(Sketcher.Constraint("DistanceY", 18, 3, 19, 3, 20.0))
sketch5.addConstraint(Sketcher.Constraint("DistanceY", 19, 3, 20, 3, 20.0))
sketch5.addConstraint(Sketcher.Constraint("DistanceY", 20, 3, 21, 3, 20.0))
sketch5.addConstraint(Sketcher.Constraint("DistanceY", 21, 3, 22, 3, 20.0))
sketch5.addConstraint(Sketcher.Constraint("DistanceY", 22, 3, 23, 3, 20.0))
sketch5.addConstraint(Sketcher.Constraint("DistanceY", 23, 3, 24, 3, 20.0))
sketch5.addConstraint(Sketcher.Constraint("DistanceY", 24, 3, 25, 3, 20.0))
sketch5.addConstraint(Sketcher.Constraint("DistanceY", 25, 3, 26, 3, 20.0))
sketch5.addConstraint(Sketcher.Constraint("DistanceY", 26, 3, 27, 3, 20.0))
sketch5.addConstraint(Sketcher.Constraint("DistanceY", -1, 1, 0, 3, 649.2))
sketch5.addConstraint(Sketcher.Constraint("DistanceX", -1, 1, 0, 3, 10.675))
pocket4 = body.newObject("PartDesign::Pocket", "Pocket003")
pocket4.Profile = sketch5
pocket4.Length = 20
pocket4.Reversed = True

# Sketch on XZ plane
sketch6 = body.newObject("Sketcher::SketchObject", "Sketch005")
sketch6.AttachmentSupport = (doc.getObject("XZ_Plane"), [""])
sketch6.MapMode = "FlatFace"
sketch6.AttachmentOffset = App.Placement(V(0, 0, -3.175), App.Rotation())
sketch6.addGeometry(Part.Circle(V(19.05, 1207.2366, 0), V(0, 0, 1), 1.65), False)
sketch6.addGeometry(Part.Circle(V(19.05, 631.1634, 0), V(0, 0, 1), 1.65), False)
sketch6.addConstraint(Sketcher.Constraint("Equal", 0, 1))
sketch6.addConstraint(Sketcher.Constraint("Vertical", 0, 3, 1, 3))
sketch6.addConstraint(Sketcher.Constraint("Diameter", 0, 3.3))
sketch6.addConstraint(Sketcher.Constraint("DistanceX", -1, 1, 0, 3, 19.05))
sketch6.addConstraint(Sketcher.Constraint("DistanceY", -1, 1, 0, 3, 1207.2366))
sketch6.addConstraint(Sketcher.Constraint("DistanceY", -1, 1, 1, 3, 631.1634))
pocket5 = body.newObject("PartDesign::Pocket", "Pocket004")
pocket5.Profile = sketch6
pocket5.Length = 70
pocket5.Reversed = True

# Sketch on YZ plane
sketch7 = body.newObject("Sketcher::SketchObject", "Sketch006")
sketch7.AttachmentSupport = (doc.getObject("YZ_Plane"), [""])
sketch7.MapMode = "FlatFace"
sketch7.AttachmentOffset = App.Placement(V(0, 0, 3.175), App.Rotation())
sketch7.addGeometry(Part.Circle(V(19.05, 1207.2366, 0), V(0, 0, 1), 1.65), False)
sketch7.addGeometry(Part.Circle(V(19.05, 631.1634, 0), V(0, 0, 1), 1.65), False)
sketch7.addConstraint(Sketcher.Constraint("Equal", 0, 1))
sketch7.addConstraint(Sketcher.Constraint("Vertical", 0, 3, 1, 3))
sketch7.addConstraint(Sketcher.Constraint("Diameter", 0, 3.3))
sketch7.addConstraint(Sketcher.Constraint("DistanceX", -1, 1, 0, 3, 19.05))
sketch7.addConstraint(Sketcher.Constraint("DistanceY", -1, 1, 0, 3, 1207.2366))
sketch7.addConstraint(Sketcher.Constraint("DistanceY", -1, 1, 1, 3, 631.1634))
pocket6 = body.newObject("PartDesign::Pocket", "Pocket005")
pocket6.Profile = sketch7
pocket6.Length = 70

doc.recompute()
